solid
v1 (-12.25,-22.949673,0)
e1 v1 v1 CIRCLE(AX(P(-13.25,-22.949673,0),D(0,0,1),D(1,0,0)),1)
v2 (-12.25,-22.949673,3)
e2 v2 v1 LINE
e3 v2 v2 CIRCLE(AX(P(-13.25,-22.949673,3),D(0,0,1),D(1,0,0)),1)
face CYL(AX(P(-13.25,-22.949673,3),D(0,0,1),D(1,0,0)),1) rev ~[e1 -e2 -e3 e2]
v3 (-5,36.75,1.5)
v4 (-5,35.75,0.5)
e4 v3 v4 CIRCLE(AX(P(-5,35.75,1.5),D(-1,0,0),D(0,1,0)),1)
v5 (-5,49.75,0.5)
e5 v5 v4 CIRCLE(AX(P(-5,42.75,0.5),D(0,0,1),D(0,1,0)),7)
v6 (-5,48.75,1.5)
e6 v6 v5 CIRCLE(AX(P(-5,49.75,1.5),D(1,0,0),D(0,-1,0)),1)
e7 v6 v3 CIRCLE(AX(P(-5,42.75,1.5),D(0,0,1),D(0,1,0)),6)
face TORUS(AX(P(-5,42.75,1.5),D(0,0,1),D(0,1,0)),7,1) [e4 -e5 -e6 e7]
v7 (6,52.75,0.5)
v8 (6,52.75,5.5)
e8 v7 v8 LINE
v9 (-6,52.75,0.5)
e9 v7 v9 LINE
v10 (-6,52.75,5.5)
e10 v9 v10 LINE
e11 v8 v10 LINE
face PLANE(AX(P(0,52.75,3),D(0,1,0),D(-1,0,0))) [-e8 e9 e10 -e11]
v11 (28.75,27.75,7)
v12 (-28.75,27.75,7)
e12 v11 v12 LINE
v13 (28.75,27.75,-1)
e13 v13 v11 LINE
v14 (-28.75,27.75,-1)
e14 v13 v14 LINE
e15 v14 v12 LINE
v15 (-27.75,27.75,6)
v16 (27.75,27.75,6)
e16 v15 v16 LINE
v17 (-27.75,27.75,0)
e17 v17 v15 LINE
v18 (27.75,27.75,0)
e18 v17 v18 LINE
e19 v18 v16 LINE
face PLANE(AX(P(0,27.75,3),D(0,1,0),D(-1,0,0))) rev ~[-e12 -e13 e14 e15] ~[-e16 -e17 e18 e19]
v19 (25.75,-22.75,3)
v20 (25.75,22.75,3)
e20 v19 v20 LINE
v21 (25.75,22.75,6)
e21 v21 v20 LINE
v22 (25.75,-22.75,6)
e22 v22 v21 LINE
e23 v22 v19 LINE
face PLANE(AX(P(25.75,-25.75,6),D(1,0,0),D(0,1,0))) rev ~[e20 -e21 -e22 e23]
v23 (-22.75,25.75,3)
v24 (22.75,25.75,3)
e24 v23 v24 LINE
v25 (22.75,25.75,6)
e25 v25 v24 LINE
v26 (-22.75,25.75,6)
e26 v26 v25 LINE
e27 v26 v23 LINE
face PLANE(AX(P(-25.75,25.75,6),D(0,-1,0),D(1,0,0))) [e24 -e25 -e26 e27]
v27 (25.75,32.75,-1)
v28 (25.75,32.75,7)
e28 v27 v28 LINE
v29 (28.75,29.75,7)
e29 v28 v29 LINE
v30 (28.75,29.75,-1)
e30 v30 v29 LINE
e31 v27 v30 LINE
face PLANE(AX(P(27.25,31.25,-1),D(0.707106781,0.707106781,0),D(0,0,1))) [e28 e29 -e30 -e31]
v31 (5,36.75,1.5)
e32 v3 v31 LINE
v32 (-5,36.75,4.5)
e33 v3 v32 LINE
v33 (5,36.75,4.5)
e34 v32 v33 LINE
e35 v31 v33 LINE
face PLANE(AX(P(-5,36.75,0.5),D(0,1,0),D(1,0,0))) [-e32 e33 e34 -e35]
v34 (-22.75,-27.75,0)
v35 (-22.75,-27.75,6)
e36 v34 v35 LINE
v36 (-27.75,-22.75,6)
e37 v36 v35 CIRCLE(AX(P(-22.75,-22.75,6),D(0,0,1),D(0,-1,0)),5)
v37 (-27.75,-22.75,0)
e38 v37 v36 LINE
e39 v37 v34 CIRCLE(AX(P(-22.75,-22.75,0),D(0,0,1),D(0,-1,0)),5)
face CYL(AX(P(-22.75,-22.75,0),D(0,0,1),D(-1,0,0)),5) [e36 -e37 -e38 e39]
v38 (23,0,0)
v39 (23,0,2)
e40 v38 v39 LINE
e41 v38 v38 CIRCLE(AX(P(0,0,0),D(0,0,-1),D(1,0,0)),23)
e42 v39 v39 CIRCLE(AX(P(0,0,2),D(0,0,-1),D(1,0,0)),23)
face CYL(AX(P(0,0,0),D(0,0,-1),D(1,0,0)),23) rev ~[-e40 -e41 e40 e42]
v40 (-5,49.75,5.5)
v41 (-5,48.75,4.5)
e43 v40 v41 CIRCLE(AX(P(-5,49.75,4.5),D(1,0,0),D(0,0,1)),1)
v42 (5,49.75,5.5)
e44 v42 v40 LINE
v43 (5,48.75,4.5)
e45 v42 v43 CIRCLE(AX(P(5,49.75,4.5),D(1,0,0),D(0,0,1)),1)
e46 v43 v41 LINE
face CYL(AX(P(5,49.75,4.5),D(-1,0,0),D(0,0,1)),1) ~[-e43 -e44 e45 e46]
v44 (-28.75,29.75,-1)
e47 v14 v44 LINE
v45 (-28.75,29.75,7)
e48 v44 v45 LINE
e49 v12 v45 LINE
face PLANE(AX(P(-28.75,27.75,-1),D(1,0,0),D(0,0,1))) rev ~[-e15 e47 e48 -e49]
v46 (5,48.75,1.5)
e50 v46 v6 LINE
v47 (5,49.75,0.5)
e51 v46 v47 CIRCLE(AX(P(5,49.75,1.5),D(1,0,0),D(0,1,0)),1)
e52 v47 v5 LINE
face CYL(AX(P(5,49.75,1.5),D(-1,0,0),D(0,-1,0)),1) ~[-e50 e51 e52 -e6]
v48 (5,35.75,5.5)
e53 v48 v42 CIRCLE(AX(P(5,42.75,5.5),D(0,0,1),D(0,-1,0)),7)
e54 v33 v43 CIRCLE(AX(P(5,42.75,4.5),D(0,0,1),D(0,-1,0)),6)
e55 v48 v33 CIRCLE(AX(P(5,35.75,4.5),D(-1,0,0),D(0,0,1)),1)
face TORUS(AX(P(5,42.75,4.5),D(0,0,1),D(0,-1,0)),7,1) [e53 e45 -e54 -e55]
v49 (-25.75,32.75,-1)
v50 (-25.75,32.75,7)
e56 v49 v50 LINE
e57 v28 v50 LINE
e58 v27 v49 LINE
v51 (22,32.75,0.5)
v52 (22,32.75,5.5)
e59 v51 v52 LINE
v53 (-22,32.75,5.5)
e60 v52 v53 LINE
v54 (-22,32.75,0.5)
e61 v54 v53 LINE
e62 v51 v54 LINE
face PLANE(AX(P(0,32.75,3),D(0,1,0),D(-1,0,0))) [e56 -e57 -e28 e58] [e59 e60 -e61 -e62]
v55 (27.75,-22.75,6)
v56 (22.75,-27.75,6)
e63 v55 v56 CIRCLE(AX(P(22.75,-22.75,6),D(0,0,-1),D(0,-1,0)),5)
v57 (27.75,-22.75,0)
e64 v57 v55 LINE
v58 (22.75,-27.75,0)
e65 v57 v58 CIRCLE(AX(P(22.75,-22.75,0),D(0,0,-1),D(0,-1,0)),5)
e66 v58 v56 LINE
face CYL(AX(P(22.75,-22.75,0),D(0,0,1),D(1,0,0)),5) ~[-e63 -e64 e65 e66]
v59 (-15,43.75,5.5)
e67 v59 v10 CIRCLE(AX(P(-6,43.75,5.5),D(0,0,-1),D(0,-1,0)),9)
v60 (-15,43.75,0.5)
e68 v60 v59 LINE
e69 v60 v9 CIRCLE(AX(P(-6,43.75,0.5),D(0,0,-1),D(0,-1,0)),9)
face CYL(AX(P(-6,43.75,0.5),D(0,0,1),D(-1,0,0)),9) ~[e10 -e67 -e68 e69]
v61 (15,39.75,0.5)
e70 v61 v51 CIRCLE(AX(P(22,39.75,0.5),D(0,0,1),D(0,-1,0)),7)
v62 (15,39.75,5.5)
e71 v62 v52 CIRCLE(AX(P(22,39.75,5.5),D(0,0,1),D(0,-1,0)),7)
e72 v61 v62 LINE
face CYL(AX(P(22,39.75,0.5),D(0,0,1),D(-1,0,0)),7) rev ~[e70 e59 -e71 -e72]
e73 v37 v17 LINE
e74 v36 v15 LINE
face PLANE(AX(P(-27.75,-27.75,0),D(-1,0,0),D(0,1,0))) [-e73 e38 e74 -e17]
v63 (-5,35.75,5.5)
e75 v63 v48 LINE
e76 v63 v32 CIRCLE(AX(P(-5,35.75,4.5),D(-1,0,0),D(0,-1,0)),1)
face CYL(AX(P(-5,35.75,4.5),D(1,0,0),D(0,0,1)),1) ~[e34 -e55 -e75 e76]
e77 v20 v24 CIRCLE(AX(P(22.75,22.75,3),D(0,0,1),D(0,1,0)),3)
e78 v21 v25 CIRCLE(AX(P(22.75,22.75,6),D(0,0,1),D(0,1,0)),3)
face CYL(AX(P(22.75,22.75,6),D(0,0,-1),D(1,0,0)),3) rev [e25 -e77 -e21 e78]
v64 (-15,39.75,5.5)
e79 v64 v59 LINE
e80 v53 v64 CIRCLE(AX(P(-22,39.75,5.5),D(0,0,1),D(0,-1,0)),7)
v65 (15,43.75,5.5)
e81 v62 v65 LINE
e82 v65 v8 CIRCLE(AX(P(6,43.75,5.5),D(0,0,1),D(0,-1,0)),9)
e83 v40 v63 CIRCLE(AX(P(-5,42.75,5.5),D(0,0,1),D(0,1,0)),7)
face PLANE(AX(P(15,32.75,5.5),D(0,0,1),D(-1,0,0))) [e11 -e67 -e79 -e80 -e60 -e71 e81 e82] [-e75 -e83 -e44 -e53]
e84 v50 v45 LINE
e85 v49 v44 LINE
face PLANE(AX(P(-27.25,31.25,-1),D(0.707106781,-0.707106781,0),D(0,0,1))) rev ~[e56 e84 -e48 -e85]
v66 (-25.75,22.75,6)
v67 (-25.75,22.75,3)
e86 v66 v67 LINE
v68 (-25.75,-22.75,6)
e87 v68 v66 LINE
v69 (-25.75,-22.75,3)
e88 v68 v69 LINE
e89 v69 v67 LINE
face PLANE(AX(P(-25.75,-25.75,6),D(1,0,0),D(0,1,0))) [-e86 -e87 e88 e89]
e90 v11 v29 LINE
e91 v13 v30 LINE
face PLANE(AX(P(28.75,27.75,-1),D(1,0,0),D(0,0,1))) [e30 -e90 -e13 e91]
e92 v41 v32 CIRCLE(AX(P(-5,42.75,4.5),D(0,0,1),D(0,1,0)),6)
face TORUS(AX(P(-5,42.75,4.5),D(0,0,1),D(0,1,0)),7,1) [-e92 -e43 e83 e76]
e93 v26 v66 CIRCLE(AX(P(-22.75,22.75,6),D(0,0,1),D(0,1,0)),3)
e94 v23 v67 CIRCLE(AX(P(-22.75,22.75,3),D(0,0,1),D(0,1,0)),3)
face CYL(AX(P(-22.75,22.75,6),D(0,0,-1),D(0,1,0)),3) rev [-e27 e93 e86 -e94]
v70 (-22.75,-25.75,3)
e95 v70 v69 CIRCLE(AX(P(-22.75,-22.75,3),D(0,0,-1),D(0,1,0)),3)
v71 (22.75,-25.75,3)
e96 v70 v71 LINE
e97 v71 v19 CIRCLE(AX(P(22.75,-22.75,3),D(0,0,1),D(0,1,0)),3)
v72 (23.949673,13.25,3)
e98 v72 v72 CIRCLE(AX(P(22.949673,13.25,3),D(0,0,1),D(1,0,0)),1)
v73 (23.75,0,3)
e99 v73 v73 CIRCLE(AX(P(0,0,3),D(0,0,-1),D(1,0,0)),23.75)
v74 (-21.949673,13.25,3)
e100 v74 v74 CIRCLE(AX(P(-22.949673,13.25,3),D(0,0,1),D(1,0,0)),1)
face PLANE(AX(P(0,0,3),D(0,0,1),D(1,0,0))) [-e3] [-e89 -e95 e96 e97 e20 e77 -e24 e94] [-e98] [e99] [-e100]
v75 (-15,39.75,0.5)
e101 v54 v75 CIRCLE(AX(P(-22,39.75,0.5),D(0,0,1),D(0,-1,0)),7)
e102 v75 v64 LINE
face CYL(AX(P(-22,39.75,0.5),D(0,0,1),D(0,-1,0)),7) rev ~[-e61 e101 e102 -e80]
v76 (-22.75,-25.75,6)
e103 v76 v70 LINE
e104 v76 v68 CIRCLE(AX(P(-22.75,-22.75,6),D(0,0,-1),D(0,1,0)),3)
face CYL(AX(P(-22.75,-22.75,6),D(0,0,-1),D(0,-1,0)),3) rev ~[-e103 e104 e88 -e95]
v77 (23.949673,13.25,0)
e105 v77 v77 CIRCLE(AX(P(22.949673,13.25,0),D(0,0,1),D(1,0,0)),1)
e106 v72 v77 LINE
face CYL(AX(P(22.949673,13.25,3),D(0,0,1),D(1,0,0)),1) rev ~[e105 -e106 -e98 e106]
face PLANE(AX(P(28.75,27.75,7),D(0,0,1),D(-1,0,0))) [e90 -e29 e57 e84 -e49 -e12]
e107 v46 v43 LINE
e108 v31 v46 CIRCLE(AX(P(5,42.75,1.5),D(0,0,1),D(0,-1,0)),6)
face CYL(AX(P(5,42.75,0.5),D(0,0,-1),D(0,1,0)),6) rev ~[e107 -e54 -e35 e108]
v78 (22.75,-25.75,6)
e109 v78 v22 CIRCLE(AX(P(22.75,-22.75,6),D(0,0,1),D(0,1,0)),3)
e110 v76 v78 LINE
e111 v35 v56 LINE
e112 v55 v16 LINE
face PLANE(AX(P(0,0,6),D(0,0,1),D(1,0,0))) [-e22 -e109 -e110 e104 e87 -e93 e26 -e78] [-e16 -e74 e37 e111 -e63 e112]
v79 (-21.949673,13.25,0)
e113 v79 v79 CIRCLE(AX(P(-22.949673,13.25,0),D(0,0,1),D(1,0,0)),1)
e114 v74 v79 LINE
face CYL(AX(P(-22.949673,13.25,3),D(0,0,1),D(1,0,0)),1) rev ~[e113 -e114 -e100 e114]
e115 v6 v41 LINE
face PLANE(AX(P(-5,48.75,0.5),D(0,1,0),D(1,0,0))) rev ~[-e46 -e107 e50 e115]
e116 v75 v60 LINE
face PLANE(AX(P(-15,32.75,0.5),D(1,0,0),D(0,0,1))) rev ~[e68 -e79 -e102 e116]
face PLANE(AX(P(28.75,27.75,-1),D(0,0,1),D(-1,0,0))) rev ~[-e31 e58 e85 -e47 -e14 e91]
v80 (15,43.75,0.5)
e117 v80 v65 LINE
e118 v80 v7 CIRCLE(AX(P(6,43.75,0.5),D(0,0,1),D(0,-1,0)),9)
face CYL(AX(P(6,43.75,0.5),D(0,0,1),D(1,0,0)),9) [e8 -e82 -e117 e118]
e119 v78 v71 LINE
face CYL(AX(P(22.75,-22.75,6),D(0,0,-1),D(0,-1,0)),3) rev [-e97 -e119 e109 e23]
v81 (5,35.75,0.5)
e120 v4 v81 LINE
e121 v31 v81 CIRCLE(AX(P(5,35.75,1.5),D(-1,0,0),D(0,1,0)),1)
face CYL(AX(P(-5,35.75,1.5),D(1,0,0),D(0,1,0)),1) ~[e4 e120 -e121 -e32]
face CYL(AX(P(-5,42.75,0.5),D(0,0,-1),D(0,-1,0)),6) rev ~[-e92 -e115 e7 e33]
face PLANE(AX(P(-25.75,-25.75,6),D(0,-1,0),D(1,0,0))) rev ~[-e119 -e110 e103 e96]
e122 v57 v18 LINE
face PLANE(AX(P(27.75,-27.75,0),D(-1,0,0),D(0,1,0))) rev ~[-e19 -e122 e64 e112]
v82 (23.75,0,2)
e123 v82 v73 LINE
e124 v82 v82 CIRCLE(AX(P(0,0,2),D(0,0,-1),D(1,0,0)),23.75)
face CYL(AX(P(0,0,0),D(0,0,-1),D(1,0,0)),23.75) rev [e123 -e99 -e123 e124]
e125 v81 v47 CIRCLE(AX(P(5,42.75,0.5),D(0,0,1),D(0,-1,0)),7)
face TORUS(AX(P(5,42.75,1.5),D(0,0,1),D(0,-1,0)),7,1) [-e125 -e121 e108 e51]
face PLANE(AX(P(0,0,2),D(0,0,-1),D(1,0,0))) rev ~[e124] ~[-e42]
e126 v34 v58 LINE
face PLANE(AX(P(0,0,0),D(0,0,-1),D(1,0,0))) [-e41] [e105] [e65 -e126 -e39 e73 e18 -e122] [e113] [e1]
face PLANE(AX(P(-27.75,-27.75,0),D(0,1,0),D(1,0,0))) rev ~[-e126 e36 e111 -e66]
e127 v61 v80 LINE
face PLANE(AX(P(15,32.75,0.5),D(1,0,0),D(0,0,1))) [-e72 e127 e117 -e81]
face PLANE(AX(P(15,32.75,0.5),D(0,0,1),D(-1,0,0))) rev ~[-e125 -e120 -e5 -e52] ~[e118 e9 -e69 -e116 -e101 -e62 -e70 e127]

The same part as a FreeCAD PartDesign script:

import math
import FreeCAD as App
import Part
import Sketcher
from FreeCAD import Vector


def edges_at(feature, points):
    """Names of the edges that pass closest to the given points."""
    edges = feature.Shape.Edges
    near = lambda p: min(range(len(edges)), key=lambda i: edges[i].distToShape(Part.Vertex(*p))[0])
    return sorted({f"Edge{near(p) + 1}" for p in points})

doc = App.newDocument("Part")
body = doc.addObject("PartDesign::Body", "Body")

sketch1 = body.newObject("Sketcher::SketchObject", "Sketch")
sketch1.AttachmentSupport = (doc.getObject("XY_Plane"), [""])
sketch1.MapMode = "FlatFace"
sketch1.addGeometry([
    Part.LineSegment(Vector(-28, 28, 0), Vector(-28, -28, 0)),
    Part.LineSegment(Vector(-28, -28, 0), Vector(28, -28, 0)),
    Part.LineSegment(Vector(28, -28, 0), Vector(28, 28, 0)),
    Part.LineSegment(Vector(28, 28, 0), Vector(-28, 28, 0)),
    Part.Circle(Vector(0, 0, 0), Vector(0, 0, 1), 24),
], False)
sketch1.addConstraint([
    Sketcher.Constraint("Coincident", 0, 2, 1, 1),
    Sketcher.Constraint("Coincident", 1, 2, 2, 1),
    Sketcher.Constraint("Coincident", 2, 2, 3, 1),
    Sketcher.Constraint("Coincident", 3, 2, 0, 1),
    Sketcher.Constraint("Vertical", 0),
    Sketcher.Constraint("Horizontal", 1),
    Sketcher.Constraint("Vertical", 2),
    Sketcher.Constraint("Horizontal", 3),
    Sketcher.Constraint("Coincident", 4, 3, -1, 1),
    Sketcher.Constraint("Symmetric", 0, 2, 2, 2, -1, 1),
    Sketcher.Constraint("Equal", 3, 0),
    Sketcher.Constraint("Diameter", 4, 47.5),
    Sketcher.Constraint("DistanceX", 1, 1, 1, 2, 55.5),
])
pad1 = body.newObject("PartDesign::Pad", "Pad")
pad1.Profile = sketch1
pad1.Length = 6

sketch2 = body.newObject("Sketcher::SketchObject", "Sketch001")
sketch2.AttachmentSupport = (doc.getObject("XZ_Plane"), [""])
sketch2.MapMode = "FlatFace"
sketch2.AttachmentOffset = App.Placement(Vector(0, 0, -27.75), App.Rotation())
sketch2.addGeometry([
    Part.LineSegment(Vector(29, 7, 0), Vector(29, -1, 0)),
    Part.LineSegment(Vector(29, -1, 0), Vector(-29, -1, 0)),
    Part.LineSegment(Vector(-29, -1, 0), Vector(-29, 7, 0)),
    Part.LineSegment(Vector(-29, 7, 0), Vector(29, 7, 0)),
], False)
sketch2.addConstraint([
    Sketcher.Constraint("Coincident", 0, 2, 1, 1),
    Sketcher.Constraint("Coincident", 1, 2, 2, 1),
    Sketcher.Constraint("Coincident", 2, 2, 3, 1),
    Sketcher.Constraint("Coincident", 3, 2, 0, 1),
    Sketcher.Constraint("Vertical", 0),
    Sketcher.Constraint("Horizontal", 1),
    Sketcher.Constraint("Vertical", 2),
    Sketcher.Constraint("Horizontal", 3),
    Sketcher.Constraint("DistanceY", 0, 2, 0, 1, 8.0),
    Sketcher.Constraint("DistanceX", 1, 2, 1, 1, 57.5),
    Sketcher.Constraint("DistanceY", 0, 2, -1, 1, 1.0),
    Sketcher.Constraint("DistanceX", -1, 1, 0, 2, 28.75),
])
pad2 = body.newObject("PartDesign::Pad", "Pad001")
pad2.Profile = sketch2
pad2.Length = 5
pad2.Reversed = True

sketch3 = body.newObject("Sketcher::SketchObject", "Sketch002")
sketch3.AttachmentSupport = (doc.getObject("XZ_Plane"), [""])
sketch3.MapMode = "FlatFace"
sketch3.AttachmentOffset = App.Placement(Vector(0, 0, -32.75), App.Rotation())
sketch3.addGeometry([
    Part.LineSegment(Vector(15, 6, 0), Vector(15, 0, 0)),
    Part.LineSegment(Vector(15, 0, 0), Vector(-15, 0, 0)),
    Part.LineSegment(Vector(-15, 0, 0), Vector(-15, 6, 0)),
    Part.LineSegment(Vector(-15, 6, 0), Vector(15, 6, 0)),
], False)
sketch3.addConstraint([
    Sketcher.Constraint("Coincident", 0, 2, 1, 1),
    Sketcher.Constraint("Coincident", 1, 2, 2, 1),
    Sketcher.Constraint("Coincident", 2, 2, 3, 1),
    Sketcher.Constraint("Coincident", 3, 2, 0, 1),
    Sketcher.Constraint("Vertical", 0),
    Sketcher.Constraint("Horizontal", 1),
    Sketcher.Constraint("Vertical", 2),
    Sketcher.Constraint("Horizontal", 3),
    Sketcher.Constraint("DistanceX", 1, 2, 1, 1, 30.0),
    Sketcher.Constraint("DistanceY", 0, 2, 0, 1, 5.0),
    Sketcher.Constraint("DistanceX", -1, 1, 0, 2, 15.0),
    Sketcher.Constraint("DistanceY", -1, 1, 0, 2, 0.5),
])
pad3 = body.newObject("PartDesign::Pad", "Pad002")
pad3.Profile = sketch3
pad3.Length = 20
pad3.Reversed = True
doc.recompute()

fillet = body.newObject("PartDesign::Fillet", "Fillet")
fillet.Base = (pad3, edges_at(pad3, [(-27.75, -27.75, 3), (27.75, -27.75, 3)]))
fillet.Radius = 5

sketch4 = body.newObject("Sketcher::SketchObject", "Sketch003")
sketch4.AttachmentSupport = (doc.getObject("XY_Plane"), [""])
sketch4.MapMode = "FlatFace"
sketch4.AttachmentOffset = App.Placement(Vector(0, 0, 0.5), App.Rotation())
sketch4.addGeometry([
    Part.ArcOfCircle(Part.Circle(Vector(-5, 43, 0), Vector(0, 0, 1), 6), math.radians(90), math.radians(270)),
    Part.LineSegment(Vector(-5, 49, 0), Vector(5, 49, 0)),
    Part.ArcOfCircle(Part.Circle(Vector(5, 43, 0), Vector(0, 0, 1), 6), math.radians(-90), math.radians(90)),
    Part.LineSegment(Vector(5, 37, 0), Vector(-5, 37, 0)),
], False)
sketch4.addConstraint([
    Sketcher.Constraint("Tangent", 0, 1, 1, 1),
    Sketcher.Constraint("Tangent", 1, 2, 2, 2),
    Sketcher.Constraint("Tangent", 2, 1, 3, 1),
    Sketcher.Constraint("Tangent", 3, 2, 0, 2),
    Sketcher.Constraint("Horizontal", 1),
    Sketcher.Constraint("Horizontal", 3),
    Sketcher.Constraint("Radius", 0, 6.0),
    Sketcher.Constraint("DistanceX", 1, 1, 1, 2, 10.0),
    Sketcher.Constraint("DistanceX", 0, 3, -1, 1, 5.0),
    Sketcher.Constraint("DistanceY", -1, 1, 0, 3, 42.75),
])
pocket1 = body.newObject("PartDesign::Pocket", "Pocket")
pocket1.Profile = sketch4
pocket1.Length = 6
pocket1.Reversed = True
doc.recompute()

fillet2 = body.newObject("PartDesign::Fillet", "Fillet001")
fillet2.Base = (pocket1, edges_at(pocket1, [(15, 52.75, 3), (-15, 52.75, 3)]))
fillet2.Radius = 9
doc.recompute()

fillet3 = body.newObject("PartDesign::Fillet", "Fillet002")
fillet3.Base = (fillet2, edges_at(fillet2, [(15, 32.75, 3), (-15, 32.75, 3)]))
fillet3.Radius = 7
doc.recompute()

chamfer = body.newObject("PartDesign::Chamfer", "Chamfer")
chamfer.Base = (fillet3, edges_at(fillet3, [(-28.75, 32.75, 3), (28.75, 32.75, 3)]))
chamfer.Size = 3

sketch5 = body.newObject("Sketcher::SketchObject", "Sketch004")
sketch5.AttachmentSupport = (doc.getObject("XY_Plane"), [""])
sketch5.MapMode = "FlatFace"
sketch5.addGeometry([
    Part.Circle(Vector(0, 0, 0), Vector(0, 0, 1), 24),
    Part.Circle(Vector(0, 0, 0), Vector(0, 0, 1), 23),
], False)
sketch5.addConstraint([
    Sketcher.Constraint("Coincident", 0, 3, -1, 1),
    Sketcher.Constraint("Coincident", 1, 3, -1, 1),
    Sketcher.Constraint("Diameter", 1, 46.0),
    Sketcher.Constraint("Diameter", 0, 47.5),
])
pad4 = body.newObject("PartDesign::Pad", "Pad003")
pad4.Profile = sketch5
pad4.Length = 2

sketch6 = body.newObject("Sketcher::SketchObject", "Sketch005")
sketch6.AttachmentSupport = (doc.getObject("XY_Plane"), [""])
sketch6.MapMode = "FlatFace"
sketch6.AttachmentOffset = App.Placement(Vector(0, 0, 6), App.Rotation())
sketch6.addGeometry([
    Part.LineSegment(Vector(-26, 26, 0), Vector(-26, -26, 0)),
    Part.LineSegment(Vector(-26, -26, 0), Vector(26, -26, 0)),
    Part.LineSegment(Vector(26, -26, 0), Vector(26, 26, 0)),
    Part.LineSegment(Vector(26, 26, 0), Vector(-26, 26, 0)),
], False)
sketch6.addConstraint([
    Sketcher.Constraint("Coincident", 0, 2, 1, 1),
    Sketcher.Constraint("Coincident", 1, 2, 2, 1),
    Sketcher.Constraint("Coincident", 2, 2, 3, 1),
    Sketcher.Constraint("Coincident", 3, 2, 0, 1),
    Sketcher.Constraint("Vertical", 0),
    Sketcher.Constraint("Horizontal", 1),
    Sketcher.Constraint("Vertical", 2),
    Sketcher.Constraint("Horizontal", 3),
    Sketcher.Constraint("Symmetric", 0, 2, 2, 2, -1, 1),
    Sketcher.Constraint("Equal", 3, 0),
    Sketcher.Constraint("DistanceX", 1, 1, 1, 2, 51.5),
])
pocket2 = body.newObject("PartDesign::Pocket", "Pocket001")
pocket2.Profile = sketch6
pocket2.Length = 3

sketch7 = body.newObject("Sketcher::SketchObject", "Sketch006")
sketch7.AttachmentSupport = (doc.getObject("XY_Plane"), [""])
sketch7.MapMode = "FlatFace"
sketch7.AttachmentOffset = App.Placement(Vector(0, 0, 3), App.Rotation())
sketch7.addGeometry([
    Part.Circle(Vector(-22.9, 13.2, 0), Vector(0, 0, 1), 1),
    Part.Circle(Vector(22.9, 13.2, 0), Vector(0, 0, 1), 1),
    Part.Circle(Vector(-13.2, -22.9, 0), Vector(0, 0, 1), 1),
], False)
sketch7.addConstraint([
    Sketcher.Constraint("Equal", 0, 1),
    Sketcher.Constraint("Equal", 1, 2),
    Sketcher.Constraint("Symmetric", 0, 3, 1, 3, -2),
    Sketcher.Constraint("Diameter", 0, 2.0),
    Sketcher.Constraint("DistanceY", -1, 1, 0, 3, 13.25),
    Sketcher.Constraint("DistanceX", 2, 3, -1, 1, 13.25),
    Sketcher.Constraint("DistanceX", 0, 3, -1, 1, 22.949673),
    Sketcher.Constraint("DistanceY", 2, 3, -1, 1, 22.949673),
])
pocket3 = body.newObject("PartDesign::Pocket", "Pocket002")
pocket3.Profile = sketch7
pocket3.Length = 6
doc.recompute()

fillet4 = body.newObject("PartDesign::Fillet", "Fillet003")
fillet4.Base = (pocket3, edges_at(pocket3, [(0, 48.75, 5.5)]))
fillet4.Radius = 1
doc.recompute()

fillet5 = body.newObject("PartDesign::Fillet", "Fillet004")
fillet5.Base = (fillet4, edges_at(fillet4, [(0, 36.75, 0.5)]))
fillet5.Radius = 1
doc.recompute()

fillet6 = body.newObject("PartDesign::Fillet", "Fillet005")
fillet6.Base = (fillet5, edges_at(fillet5, [
    (-25.75, -25.75, 4.5),
    (25.75, -25.75, 4.5),
    (25.75, 25.75, 4.5),
    (-25.75, 25.75, 4.5),
]))
fillet6.Radius = 3

doc.recompute()
